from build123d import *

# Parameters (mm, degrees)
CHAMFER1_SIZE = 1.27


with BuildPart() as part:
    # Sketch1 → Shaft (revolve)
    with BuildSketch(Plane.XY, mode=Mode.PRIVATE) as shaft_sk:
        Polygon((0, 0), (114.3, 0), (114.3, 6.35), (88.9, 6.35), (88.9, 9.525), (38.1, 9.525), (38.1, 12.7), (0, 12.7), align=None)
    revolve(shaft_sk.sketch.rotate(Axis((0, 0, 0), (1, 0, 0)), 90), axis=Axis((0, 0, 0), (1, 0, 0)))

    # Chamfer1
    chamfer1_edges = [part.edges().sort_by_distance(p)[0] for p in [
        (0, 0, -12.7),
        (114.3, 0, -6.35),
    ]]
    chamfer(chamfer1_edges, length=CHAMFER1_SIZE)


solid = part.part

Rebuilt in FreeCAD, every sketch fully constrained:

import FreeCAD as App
import Part
import Sketcher
from FreeCAD import Vector
Q = App.Units.Quantity


def edges_at(feature, points):
    """Names of the edges that pass closest to the given points."""
    edges = feature.Shape.Edges
    near = lambda p: min(range(len(edges)), key=lambda i: edges[i].distToShape(Part.Vertex(*p))[0])
    return sorted({f"Edge{near(p) + 1}" for p in points})


def add_polygon(sketch, points):
    """Adds a closed chain of lines whose ends are joined by coincident constraints."""
    first, n = sketch.GeometryCount, len(points)
    for a, b in zip(points, points[1:] + points[:1]):
        sketch.addGeometry(Part.LineSegment(App.Vector(*a, 0), App.Vector(*b, 0)), False)
    for i in range(n):
        sketch.addConstraint(Sketcher.Constraint("Coincident", first + i, 2, first + (i + 1) % n, 1))

doc = App.newDocument("Part")
body = doc.addObject("PartDesign::Body", "Body")

# Sketch on XY plane
sketch1 = doc.addObject("Sketcher::SketchObject", "Sketch")
body.addObject(sketch1)
sketch1.AttachmentSupport = (doc.XY_Plane, [""])
sketch1.MapMode = "FlatFace"
add_polygon(sketch1, [(0, 0), (114.3, 0), (114.3, 6.3), (88.9, 6.3), (88.9, 9.5), (38.1, 9.5), (38.1, 12.7), (0, 12.7)])  # lines 0-7
sketch1.addConstraint(Sketcher.Constraint("Horizontal", 0))
sketch1.addConstraint(Sketcher.Constraint("Vertical", 1))
sketch1.addConstraint(Sketcher.Constraint("Horizontal", 2))
sketch1.addConstraint(Sketcher.Constraint("Vertical", 3))
sketch1.addConstraint(Sketcher.Constraint("Horizontal", 4))
sketch1.addConstraint(Sketcher.Constraint("Vertical", 5))
sketch1.addConstraint(Sketcher.Constraint("Horizontal", 6))
sketch1.addConstraint(Sketcher.Constraint("Vertical", 7))
sketch1.addConstraint(Sketcher.Constraint("Coincident", 7, 2, -1, 1))
sketch1.addConstraint(Sketcher.Constraint("Equal", 3, 5))
sketch1.addConstraint(Sketcher.Constraint("DistanceX", 2, 2, 2, 1, Q("1 in")))
sketch1.addConstraint(Sketcher.Constraint("DistanceX", 4, 2, 4, 1, Q("2 in")))
sketch1.addConstraint(Sketcher.Constraint("DistanceX", 0, 1, 0, 2, Q("4.5 in")))
sketch1.addConstraint(Sketcher.Constraint("DistanceY", 7, 2, 7, 1, Q("0.5 in")))
sketch1.addConstraint(Sketcher.Constraint("DistanceY", 1, 1, 1, 2, Q("0.25 in")))
revolution = doc.addObject("PartDesign::Revolution", "Revolution")
body.addObject(revolution)
revolution.Profile = sketch1
revolution.ReferenceAxis = (sketch1, ["H_Axis"])
revolution.Angle = 360
doc.recompute()

chamfer = doc.addObject("PartDesign::Chamfer", "Chamfer")
body.addObject(chamfer)
chamfer.Base = (revolution, edges_at(revolution, [(0, 0, -12.7), (114.3, 0, -6.35)]))
chamfer.Size = Q("0.05 in")

doc.recompute()
